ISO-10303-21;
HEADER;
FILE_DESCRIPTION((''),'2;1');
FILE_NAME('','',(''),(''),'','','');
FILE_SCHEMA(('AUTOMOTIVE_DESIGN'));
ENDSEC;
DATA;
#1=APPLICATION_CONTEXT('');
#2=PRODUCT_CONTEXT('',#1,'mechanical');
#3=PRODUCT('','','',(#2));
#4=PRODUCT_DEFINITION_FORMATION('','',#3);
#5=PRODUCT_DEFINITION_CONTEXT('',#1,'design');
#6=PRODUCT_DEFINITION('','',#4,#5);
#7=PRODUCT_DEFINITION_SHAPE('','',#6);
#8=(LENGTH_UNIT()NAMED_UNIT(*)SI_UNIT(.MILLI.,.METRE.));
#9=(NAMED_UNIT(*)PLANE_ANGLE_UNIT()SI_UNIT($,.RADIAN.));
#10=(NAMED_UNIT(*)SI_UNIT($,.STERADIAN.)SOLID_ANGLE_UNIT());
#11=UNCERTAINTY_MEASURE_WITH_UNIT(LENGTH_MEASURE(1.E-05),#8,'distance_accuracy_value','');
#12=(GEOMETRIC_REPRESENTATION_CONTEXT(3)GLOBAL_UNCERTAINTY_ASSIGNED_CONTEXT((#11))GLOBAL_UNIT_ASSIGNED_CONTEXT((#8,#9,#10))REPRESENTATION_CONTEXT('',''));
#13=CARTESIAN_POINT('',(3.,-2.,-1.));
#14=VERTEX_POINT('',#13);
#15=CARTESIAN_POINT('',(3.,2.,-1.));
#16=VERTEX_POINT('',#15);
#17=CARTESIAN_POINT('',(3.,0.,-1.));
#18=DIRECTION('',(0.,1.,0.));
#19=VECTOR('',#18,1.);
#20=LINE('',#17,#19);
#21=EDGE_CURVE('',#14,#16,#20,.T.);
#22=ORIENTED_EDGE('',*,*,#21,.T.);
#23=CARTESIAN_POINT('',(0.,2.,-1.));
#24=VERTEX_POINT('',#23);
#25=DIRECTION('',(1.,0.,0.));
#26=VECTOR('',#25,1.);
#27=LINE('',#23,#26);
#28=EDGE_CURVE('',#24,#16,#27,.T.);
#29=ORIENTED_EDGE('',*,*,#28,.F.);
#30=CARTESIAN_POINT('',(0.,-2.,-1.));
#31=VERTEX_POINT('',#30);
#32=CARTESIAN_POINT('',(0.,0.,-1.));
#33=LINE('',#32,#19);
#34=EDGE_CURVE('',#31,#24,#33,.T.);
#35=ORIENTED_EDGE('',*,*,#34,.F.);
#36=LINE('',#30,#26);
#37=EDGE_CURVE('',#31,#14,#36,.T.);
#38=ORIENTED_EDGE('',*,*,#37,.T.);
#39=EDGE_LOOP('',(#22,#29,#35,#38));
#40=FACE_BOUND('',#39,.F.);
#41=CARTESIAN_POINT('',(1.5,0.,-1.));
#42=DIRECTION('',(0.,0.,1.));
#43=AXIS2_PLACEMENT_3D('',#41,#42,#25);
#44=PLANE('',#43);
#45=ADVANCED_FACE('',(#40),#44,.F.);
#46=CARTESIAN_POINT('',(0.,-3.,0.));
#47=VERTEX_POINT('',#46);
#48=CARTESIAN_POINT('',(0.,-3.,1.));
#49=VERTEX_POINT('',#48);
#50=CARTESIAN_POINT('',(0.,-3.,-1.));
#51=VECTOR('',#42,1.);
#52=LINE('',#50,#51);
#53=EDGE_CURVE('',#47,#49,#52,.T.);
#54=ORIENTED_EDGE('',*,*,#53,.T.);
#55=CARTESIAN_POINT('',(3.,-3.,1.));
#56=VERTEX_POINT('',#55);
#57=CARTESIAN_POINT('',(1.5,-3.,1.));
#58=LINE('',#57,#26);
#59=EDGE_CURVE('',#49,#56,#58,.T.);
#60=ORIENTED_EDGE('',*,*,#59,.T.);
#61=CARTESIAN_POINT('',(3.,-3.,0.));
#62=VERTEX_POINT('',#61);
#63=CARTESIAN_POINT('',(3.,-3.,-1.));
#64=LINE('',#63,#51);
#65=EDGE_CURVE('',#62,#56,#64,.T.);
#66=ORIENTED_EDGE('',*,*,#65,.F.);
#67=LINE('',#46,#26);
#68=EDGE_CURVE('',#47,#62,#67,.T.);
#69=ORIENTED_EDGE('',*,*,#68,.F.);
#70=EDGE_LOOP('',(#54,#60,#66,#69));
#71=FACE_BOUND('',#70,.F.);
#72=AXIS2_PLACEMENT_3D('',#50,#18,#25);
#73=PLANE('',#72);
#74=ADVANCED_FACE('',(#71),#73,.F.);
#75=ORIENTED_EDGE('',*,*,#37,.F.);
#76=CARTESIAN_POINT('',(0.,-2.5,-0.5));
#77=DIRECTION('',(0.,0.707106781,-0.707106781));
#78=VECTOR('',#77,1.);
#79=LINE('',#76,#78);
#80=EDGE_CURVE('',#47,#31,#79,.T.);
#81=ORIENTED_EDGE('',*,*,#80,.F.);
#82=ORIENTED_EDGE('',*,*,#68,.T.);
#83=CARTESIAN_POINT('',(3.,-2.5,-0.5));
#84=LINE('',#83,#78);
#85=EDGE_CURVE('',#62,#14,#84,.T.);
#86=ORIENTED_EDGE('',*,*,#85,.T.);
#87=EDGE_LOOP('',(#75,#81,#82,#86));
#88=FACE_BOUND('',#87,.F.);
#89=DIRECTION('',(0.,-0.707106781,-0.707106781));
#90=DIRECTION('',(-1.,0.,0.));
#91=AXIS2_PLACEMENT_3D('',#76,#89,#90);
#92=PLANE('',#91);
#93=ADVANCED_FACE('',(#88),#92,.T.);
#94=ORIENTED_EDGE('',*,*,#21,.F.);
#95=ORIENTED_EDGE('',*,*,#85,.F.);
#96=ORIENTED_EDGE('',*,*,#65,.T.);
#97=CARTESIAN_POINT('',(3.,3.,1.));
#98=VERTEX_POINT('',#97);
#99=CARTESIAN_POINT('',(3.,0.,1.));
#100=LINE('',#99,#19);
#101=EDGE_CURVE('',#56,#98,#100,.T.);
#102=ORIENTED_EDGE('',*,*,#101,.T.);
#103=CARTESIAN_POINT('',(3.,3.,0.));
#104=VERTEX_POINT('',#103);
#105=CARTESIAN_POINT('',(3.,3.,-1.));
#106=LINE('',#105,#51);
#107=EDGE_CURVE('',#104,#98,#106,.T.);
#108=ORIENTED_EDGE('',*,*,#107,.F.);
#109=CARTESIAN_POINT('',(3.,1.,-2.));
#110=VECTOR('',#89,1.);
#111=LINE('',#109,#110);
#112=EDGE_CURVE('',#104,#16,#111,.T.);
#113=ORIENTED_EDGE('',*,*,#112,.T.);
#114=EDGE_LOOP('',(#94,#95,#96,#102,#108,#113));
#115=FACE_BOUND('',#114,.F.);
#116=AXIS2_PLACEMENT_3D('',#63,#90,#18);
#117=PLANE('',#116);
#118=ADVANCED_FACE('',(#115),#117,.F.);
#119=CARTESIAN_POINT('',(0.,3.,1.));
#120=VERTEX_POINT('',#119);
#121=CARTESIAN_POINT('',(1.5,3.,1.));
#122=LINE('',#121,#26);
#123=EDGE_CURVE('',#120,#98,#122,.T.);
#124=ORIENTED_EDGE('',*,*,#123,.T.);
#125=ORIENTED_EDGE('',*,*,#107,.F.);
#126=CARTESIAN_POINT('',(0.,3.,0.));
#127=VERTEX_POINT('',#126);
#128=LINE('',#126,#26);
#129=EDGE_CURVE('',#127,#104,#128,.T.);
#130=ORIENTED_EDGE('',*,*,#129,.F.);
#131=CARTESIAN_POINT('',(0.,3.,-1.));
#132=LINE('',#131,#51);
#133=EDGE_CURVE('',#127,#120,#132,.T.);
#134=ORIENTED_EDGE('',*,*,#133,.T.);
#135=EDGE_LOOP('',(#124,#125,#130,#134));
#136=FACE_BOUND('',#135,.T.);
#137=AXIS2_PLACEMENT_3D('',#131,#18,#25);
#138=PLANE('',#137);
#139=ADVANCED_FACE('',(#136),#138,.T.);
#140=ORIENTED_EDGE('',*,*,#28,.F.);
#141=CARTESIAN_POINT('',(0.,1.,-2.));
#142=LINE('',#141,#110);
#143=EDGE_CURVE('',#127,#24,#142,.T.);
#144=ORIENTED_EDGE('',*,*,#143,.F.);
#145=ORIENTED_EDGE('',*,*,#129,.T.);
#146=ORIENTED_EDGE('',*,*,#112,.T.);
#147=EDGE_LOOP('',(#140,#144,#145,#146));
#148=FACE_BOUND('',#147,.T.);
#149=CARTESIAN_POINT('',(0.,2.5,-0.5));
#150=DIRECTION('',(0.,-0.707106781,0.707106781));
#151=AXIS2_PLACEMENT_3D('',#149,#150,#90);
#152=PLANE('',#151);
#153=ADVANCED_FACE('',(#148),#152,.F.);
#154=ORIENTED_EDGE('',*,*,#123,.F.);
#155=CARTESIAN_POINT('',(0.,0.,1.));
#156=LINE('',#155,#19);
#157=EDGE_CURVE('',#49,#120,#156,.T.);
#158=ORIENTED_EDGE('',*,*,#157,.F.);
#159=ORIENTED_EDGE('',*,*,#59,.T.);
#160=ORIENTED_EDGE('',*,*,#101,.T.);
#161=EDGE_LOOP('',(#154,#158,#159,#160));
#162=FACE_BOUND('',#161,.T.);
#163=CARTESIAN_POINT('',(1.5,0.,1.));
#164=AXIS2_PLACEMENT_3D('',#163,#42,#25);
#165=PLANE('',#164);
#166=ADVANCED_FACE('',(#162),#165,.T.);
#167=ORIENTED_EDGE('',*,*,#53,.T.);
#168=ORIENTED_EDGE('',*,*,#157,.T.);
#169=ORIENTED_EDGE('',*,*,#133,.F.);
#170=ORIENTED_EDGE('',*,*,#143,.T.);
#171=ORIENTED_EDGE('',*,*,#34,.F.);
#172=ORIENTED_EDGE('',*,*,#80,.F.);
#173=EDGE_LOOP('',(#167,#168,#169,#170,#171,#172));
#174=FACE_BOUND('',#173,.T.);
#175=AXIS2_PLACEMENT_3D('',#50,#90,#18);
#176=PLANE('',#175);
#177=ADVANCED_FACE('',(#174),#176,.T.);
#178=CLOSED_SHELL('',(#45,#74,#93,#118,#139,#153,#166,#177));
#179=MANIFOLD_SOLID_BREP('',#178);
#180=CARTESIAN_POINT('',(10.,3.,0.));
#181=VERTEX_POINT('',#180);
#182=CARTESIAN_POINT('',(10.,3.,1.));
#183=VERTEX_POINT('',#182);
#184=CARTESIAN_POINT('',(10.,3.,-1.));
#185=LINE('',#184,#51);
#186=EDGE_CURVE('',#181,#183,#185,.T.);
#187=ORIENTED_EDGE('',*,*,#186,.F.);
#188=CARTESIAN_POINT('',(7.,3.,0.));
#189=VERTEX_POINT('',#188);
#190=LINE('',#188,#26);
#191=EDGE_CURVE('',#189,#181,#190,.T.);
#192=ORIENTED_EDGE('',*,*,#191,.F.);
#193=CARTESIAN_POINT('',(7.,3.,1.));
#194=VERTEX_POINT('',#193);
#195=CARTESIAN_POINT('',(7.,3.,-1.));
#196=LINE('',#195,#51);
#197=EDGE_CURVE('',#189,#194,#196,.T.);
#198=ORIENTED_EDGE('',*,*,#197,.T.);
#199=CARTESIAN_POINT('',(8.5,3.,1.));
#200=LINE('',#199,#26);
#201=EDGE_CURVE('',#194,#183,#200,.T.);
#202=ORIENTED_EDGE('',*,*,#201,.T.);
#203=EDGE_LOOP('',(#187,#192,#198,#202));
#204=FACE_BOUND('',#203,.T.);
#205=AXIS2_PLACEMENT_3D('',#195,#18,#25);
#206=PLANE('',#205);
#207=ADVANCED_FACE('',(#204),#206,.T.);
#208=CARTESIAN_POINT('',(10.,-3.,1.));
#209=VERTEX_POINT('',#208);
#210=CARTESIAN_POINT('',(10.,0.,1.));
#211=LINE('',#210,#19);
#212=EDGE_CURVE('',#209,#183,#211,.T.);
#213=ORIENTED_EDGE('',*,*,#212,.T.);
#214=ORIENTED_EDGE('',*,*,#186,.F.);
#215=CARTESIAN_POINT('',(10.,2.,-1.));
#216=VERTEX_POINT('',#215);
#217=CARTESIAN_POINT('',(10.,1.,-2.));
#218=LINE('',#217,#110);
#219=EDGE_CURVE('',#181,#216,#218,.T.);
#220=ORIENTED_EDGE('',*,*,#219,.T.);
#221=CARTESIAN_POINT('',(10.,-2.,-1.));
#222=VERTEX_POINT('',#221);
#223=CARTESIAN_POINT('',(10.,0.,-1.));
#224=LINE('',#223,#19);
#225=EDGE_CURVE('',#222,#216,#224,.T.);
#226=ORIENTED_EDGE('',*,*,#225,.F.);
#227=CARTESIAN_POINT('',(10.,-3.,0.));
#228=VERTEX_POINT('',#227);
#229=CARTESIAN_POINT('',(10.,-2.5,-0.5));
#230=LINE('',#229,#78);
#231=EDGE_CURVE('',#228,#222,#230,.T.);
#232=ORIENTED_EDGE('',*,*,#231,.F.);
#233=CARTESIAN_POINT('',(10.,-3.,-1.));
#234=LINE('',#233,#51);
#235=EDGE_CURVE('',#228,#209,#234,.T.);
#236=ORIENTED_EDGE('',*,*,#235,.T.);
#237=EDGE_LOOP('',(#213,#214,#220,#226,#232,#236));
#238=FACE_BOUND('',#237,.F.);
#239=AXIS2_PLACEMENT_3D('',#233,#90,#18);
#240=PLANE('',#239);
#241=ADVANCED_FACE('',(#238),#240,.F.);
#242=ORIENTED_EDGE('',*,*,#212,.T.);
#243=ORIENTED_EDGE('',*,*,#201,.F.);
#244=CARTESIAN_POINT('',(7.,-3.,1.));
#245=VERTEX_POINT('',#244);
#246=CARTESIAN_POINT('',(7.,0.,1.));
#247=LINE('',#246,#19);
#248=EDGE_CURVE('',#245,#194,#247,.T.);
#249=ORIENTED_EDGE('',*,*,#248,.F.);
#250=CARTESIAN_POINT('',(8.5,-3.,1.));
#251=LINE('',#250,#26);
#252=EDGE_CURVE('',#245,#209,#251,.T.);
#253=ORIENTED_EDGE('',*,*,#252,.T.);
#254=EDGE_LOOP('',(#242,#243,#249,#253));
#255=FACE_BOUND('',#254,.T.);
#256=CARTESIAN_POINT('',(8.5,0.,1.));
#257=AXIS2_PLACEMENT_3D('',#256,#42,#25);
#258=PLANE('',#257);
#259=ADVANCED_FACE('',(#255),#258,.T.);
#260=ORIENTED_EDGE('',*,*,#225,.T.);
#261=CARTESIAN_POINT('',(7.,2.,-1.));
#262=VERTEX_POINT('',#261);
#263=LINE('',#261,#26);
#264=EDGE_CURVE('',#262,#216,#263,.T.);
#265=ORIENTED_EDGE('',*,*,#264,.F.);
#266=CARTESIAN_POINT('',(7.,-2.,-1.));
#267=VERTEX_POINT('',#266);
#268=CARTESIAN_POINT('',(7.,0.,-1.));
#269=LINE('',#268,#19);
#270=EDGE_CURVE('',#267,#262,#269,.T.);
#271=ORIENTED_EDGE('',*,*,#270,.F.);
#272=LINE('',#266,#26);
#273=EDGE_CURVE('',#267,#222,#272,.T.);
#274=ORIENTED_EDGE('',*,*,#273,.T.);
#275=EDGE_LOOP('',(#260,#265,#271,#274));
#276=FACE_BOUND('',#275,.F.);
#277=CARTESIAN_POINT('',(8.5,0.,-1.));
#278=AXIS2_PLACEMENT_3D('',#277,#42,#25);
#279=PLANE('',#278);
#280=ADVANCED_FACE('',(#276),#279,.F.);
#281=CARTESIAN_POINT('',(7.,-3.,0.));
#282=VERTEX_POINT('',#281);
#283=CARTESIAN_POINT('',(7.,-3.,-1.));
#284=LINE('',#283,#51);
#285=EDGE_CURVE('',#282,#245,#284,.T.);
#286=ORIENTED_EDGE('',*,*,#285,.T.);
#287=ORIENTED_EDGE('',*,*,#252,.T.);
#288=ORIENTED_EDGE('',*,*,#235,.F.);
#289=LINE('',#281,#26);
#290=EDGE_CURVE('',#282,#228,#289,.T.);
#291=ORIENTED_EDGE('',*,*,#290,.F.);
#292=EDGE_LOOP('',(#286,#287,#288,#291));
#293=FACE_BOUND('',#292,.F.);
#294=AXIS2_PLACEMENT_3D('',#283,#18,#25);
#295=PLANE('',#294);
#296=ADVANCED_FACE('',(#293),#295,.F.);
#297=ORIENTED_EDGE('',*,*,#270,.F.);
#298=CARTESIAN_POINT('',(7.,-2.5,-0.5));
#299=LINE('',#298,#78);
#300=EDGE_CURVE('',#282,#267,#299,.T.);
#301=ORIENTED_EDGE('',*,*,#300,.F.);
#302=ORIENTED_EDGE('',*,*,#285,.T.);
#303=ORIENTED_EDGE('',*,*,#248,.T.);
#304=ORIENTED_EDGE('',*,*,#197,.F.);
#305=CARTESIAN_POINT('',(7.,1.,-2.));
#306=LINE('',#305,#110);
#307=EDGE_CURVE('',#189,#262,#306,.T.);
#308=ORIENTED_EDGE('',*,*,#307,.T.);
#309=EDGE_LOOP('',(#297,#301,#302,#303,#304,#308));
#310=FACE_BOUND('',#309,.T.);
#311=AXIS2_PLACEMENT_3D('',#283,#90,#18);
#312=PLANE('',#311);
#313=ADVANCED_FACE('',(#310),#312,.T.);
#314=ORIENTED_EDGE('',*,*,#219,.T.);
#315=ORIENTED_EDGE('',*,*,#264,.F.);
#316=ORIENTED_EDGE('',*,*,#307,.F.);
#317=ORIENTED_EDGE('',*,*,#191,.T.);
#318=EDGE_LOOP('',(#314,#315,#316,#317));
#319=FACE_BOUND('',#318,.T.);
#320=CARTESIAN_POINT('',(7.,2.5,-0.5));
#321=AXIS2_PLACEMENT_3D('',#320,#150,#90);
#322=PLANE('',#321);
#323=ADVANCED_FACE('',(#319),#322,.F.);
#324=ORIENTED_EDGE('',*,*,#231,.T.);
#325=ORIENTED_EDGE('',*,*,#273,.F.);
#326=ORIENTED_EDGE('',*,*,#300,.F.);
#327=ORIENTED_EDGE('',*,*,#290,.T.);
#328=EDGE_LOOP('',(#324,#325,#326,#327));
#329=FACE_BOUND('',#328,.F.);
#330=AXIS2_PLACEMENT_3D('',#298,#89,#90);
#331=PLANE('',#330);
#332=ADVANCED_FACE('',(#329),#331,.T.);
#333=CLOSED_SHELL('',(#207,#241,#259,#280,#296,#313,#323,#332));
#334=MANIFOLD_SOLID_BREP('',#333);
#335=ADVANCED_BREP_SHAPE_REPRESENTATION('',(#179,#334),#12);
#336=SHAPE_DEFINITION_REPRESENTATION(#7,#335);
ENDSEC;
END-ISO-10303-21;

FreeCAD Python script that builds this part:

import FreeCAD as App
import Part
import Sketcher
from FreeCAD import Vector
Q = App.Units.Quantity


def edges_at(feature, points):
    """Names of the edges that pass closest to the given points."""
    edges = feature.Shape.Edges
    near = lambda p: min(range(len(edges)), key=lambda i: edges[i].distToShape(Part.Vertex(*p))[0])
    return sorted({f"Edge{near(p) + 1}" for p in points})

doc = App.newDocument("Part")
body = doc.addObject("PartDesign::Body", "Body")

sketch1 = body.newObject("Sketcher::SketchObject", "Sketch")
sketch1.AttachmentSupport = (doc.getObject("XY_Plane"), [""])
sketch1.MapMode = "FlatFace"
sketch1.AttachmentOffset = App.Placement(Vector(0, 0, -1), App.Rotation())
sketch1.addGeometry(Part.LineSegment(Vector(7, 3, 0), Vector(7, -3, 0)), False)
sketch1.addGeometry(Part.LineSegment(Vector(7, -3, 0), Vector(10, -3, 0)), False)
sketch1.addGeometry(Part.LineSegment(Vector(10, -3, 0), Vector(10, 3, 0)), False)
sketch1.addGeometry(Part.LineSegment(Vector(10, 3, 0), Vector(7, 3, 0)), False)
sketch1.addConstraint(Sketcher.Constraint("Coincident", 0, 2, 1, 1))
sketch1.addConstraint(Sketcher.Constraint("Coincident", 1, 2, 2, 1))
sketch1.addConstraint(Sketcher.Constraint("Coincident", 2, 2, 3, 1))
sketch1.addConstraint(Sketcher.Constraint("Coincident", 3, 2, 0, 1))
sketch1.addConstraint(Sketcher.Constraint("Vertical", 0))
sketch1.addConstraint(Sketcher.Constraint("Horizontal", 1))
sketch1.addConstraint(Sketcher.Constraint("Vertical", 2))
sketch1.addConstraint(Sketcher.Constraint("Horizontal", 3))
sketch1.addConstraint(Sketcher.Constraint("DistanceX", 1, 1, 1, 2, Q("3 mm")))
sketch1.addConstraint(Sketcher.Constraint("DistanceY", 0, 2, 0, 1, Q("6 mm")))
sketch1.addConstraint(Sketcher.Constraint("DistanceX", -1, 1, 0, 2, Q("7 mm")))
sketch1.addConstraint(Sketcher.Constraint("DistanceY", 0, 2, -1, 1, Q("3 mm")))
pad1 = body.newObject("PartDesign::Pad", "Pad")
pad1.Profile = sketch1
pad1.Length = 2
body2 = doc.addObject("PartDesign::Body", "Body001")
body2.AllowCompound = True

sketch2 = body2.newObject("Sketcher::SketchObject", "Sketch001")
sketch2.AttachmentSupport = (doc.getObject("XY_Plane001"), [""])
sketch2.MapMode = "FlatFace"
sketch2.AttachmentOffset = App.Placement(Vector(0, 0, -1), App.Rotation())
sketch2.addGeometry(Part.LineSegment(Vector(0, 3, 0), Vector(0, -3, 0)), False)
sketch2.addGeometry(Part.LineSegment(Vector(0, -3, 0), Vector(3, -3, 0)), False)
sketch2.addGeometry(Part.LineSegment(Vector(3, -3, 0), Vector(3, 3, 0)), False)
sketch2.addGeometry(Part.LineSegment(Vector(3, 3, 0), Vector(0, 3, 0)), False)
sketch2.addConstraint(Sketcher.Constraint("Coincident", 0, 2, 1, 1))
sketch2.addConstraint(Sketcher.Constraint("Coincident", 1, 2, 2, 1))
sketch2.addConstraint(Sketcher.Constraint("Coincident", 2, 2, 3, 1))
sketch2.addConstraint(Sketcher.Constraint("Coincident", 3, 2, 0, 1))
sketch2.addConstraint(Sketcher.Constraint("Vertical", 0))
sketch2.addConstraint(Sketcher.Constraint("Horizontal", 1))
sketch2.addConstraint(Sketcher.Constraint("Vertical", 2))
sketch2.addConstraint(Sketcher.Constraint("Horizontal", 3))
sketch2.addConstraint(Sketcher.Constraint("Symmetric", 0, 2, 3, 2, -1, 1))
sketch2.addConstraint(Sketcher.Constraint("DistanceX", 1, 1, 1, 2, Q("3 mm")))
sketch2.addConstraint(Sketcher.Constraint("DistanceY", 0, 2, 0, 1, Q("6 mm")))
pad2 = body2.newObject("PartDesign::Pad", "Pad001")
pad2.Profile = sketch2
pad2.Length = 2
doc.recompute()

boolean = body2.newObject("PartDesign::Boolean", "Boolean")
boolean.Type = "Fuse"
boolean.addObjects([body])
doc.recompute()

chamfer = body2.newObject("PartDesign::Chamfer", "Chamfer")
chamfer.Base = (boolean, edges_at(boolean, [
    (1.5, -3, -1),
    (1.5, 3, -1),
    (8.5, -3, -1),
    (8.5, 3, -1),
]))
chamfer.Size = 1

doc.recompute()
